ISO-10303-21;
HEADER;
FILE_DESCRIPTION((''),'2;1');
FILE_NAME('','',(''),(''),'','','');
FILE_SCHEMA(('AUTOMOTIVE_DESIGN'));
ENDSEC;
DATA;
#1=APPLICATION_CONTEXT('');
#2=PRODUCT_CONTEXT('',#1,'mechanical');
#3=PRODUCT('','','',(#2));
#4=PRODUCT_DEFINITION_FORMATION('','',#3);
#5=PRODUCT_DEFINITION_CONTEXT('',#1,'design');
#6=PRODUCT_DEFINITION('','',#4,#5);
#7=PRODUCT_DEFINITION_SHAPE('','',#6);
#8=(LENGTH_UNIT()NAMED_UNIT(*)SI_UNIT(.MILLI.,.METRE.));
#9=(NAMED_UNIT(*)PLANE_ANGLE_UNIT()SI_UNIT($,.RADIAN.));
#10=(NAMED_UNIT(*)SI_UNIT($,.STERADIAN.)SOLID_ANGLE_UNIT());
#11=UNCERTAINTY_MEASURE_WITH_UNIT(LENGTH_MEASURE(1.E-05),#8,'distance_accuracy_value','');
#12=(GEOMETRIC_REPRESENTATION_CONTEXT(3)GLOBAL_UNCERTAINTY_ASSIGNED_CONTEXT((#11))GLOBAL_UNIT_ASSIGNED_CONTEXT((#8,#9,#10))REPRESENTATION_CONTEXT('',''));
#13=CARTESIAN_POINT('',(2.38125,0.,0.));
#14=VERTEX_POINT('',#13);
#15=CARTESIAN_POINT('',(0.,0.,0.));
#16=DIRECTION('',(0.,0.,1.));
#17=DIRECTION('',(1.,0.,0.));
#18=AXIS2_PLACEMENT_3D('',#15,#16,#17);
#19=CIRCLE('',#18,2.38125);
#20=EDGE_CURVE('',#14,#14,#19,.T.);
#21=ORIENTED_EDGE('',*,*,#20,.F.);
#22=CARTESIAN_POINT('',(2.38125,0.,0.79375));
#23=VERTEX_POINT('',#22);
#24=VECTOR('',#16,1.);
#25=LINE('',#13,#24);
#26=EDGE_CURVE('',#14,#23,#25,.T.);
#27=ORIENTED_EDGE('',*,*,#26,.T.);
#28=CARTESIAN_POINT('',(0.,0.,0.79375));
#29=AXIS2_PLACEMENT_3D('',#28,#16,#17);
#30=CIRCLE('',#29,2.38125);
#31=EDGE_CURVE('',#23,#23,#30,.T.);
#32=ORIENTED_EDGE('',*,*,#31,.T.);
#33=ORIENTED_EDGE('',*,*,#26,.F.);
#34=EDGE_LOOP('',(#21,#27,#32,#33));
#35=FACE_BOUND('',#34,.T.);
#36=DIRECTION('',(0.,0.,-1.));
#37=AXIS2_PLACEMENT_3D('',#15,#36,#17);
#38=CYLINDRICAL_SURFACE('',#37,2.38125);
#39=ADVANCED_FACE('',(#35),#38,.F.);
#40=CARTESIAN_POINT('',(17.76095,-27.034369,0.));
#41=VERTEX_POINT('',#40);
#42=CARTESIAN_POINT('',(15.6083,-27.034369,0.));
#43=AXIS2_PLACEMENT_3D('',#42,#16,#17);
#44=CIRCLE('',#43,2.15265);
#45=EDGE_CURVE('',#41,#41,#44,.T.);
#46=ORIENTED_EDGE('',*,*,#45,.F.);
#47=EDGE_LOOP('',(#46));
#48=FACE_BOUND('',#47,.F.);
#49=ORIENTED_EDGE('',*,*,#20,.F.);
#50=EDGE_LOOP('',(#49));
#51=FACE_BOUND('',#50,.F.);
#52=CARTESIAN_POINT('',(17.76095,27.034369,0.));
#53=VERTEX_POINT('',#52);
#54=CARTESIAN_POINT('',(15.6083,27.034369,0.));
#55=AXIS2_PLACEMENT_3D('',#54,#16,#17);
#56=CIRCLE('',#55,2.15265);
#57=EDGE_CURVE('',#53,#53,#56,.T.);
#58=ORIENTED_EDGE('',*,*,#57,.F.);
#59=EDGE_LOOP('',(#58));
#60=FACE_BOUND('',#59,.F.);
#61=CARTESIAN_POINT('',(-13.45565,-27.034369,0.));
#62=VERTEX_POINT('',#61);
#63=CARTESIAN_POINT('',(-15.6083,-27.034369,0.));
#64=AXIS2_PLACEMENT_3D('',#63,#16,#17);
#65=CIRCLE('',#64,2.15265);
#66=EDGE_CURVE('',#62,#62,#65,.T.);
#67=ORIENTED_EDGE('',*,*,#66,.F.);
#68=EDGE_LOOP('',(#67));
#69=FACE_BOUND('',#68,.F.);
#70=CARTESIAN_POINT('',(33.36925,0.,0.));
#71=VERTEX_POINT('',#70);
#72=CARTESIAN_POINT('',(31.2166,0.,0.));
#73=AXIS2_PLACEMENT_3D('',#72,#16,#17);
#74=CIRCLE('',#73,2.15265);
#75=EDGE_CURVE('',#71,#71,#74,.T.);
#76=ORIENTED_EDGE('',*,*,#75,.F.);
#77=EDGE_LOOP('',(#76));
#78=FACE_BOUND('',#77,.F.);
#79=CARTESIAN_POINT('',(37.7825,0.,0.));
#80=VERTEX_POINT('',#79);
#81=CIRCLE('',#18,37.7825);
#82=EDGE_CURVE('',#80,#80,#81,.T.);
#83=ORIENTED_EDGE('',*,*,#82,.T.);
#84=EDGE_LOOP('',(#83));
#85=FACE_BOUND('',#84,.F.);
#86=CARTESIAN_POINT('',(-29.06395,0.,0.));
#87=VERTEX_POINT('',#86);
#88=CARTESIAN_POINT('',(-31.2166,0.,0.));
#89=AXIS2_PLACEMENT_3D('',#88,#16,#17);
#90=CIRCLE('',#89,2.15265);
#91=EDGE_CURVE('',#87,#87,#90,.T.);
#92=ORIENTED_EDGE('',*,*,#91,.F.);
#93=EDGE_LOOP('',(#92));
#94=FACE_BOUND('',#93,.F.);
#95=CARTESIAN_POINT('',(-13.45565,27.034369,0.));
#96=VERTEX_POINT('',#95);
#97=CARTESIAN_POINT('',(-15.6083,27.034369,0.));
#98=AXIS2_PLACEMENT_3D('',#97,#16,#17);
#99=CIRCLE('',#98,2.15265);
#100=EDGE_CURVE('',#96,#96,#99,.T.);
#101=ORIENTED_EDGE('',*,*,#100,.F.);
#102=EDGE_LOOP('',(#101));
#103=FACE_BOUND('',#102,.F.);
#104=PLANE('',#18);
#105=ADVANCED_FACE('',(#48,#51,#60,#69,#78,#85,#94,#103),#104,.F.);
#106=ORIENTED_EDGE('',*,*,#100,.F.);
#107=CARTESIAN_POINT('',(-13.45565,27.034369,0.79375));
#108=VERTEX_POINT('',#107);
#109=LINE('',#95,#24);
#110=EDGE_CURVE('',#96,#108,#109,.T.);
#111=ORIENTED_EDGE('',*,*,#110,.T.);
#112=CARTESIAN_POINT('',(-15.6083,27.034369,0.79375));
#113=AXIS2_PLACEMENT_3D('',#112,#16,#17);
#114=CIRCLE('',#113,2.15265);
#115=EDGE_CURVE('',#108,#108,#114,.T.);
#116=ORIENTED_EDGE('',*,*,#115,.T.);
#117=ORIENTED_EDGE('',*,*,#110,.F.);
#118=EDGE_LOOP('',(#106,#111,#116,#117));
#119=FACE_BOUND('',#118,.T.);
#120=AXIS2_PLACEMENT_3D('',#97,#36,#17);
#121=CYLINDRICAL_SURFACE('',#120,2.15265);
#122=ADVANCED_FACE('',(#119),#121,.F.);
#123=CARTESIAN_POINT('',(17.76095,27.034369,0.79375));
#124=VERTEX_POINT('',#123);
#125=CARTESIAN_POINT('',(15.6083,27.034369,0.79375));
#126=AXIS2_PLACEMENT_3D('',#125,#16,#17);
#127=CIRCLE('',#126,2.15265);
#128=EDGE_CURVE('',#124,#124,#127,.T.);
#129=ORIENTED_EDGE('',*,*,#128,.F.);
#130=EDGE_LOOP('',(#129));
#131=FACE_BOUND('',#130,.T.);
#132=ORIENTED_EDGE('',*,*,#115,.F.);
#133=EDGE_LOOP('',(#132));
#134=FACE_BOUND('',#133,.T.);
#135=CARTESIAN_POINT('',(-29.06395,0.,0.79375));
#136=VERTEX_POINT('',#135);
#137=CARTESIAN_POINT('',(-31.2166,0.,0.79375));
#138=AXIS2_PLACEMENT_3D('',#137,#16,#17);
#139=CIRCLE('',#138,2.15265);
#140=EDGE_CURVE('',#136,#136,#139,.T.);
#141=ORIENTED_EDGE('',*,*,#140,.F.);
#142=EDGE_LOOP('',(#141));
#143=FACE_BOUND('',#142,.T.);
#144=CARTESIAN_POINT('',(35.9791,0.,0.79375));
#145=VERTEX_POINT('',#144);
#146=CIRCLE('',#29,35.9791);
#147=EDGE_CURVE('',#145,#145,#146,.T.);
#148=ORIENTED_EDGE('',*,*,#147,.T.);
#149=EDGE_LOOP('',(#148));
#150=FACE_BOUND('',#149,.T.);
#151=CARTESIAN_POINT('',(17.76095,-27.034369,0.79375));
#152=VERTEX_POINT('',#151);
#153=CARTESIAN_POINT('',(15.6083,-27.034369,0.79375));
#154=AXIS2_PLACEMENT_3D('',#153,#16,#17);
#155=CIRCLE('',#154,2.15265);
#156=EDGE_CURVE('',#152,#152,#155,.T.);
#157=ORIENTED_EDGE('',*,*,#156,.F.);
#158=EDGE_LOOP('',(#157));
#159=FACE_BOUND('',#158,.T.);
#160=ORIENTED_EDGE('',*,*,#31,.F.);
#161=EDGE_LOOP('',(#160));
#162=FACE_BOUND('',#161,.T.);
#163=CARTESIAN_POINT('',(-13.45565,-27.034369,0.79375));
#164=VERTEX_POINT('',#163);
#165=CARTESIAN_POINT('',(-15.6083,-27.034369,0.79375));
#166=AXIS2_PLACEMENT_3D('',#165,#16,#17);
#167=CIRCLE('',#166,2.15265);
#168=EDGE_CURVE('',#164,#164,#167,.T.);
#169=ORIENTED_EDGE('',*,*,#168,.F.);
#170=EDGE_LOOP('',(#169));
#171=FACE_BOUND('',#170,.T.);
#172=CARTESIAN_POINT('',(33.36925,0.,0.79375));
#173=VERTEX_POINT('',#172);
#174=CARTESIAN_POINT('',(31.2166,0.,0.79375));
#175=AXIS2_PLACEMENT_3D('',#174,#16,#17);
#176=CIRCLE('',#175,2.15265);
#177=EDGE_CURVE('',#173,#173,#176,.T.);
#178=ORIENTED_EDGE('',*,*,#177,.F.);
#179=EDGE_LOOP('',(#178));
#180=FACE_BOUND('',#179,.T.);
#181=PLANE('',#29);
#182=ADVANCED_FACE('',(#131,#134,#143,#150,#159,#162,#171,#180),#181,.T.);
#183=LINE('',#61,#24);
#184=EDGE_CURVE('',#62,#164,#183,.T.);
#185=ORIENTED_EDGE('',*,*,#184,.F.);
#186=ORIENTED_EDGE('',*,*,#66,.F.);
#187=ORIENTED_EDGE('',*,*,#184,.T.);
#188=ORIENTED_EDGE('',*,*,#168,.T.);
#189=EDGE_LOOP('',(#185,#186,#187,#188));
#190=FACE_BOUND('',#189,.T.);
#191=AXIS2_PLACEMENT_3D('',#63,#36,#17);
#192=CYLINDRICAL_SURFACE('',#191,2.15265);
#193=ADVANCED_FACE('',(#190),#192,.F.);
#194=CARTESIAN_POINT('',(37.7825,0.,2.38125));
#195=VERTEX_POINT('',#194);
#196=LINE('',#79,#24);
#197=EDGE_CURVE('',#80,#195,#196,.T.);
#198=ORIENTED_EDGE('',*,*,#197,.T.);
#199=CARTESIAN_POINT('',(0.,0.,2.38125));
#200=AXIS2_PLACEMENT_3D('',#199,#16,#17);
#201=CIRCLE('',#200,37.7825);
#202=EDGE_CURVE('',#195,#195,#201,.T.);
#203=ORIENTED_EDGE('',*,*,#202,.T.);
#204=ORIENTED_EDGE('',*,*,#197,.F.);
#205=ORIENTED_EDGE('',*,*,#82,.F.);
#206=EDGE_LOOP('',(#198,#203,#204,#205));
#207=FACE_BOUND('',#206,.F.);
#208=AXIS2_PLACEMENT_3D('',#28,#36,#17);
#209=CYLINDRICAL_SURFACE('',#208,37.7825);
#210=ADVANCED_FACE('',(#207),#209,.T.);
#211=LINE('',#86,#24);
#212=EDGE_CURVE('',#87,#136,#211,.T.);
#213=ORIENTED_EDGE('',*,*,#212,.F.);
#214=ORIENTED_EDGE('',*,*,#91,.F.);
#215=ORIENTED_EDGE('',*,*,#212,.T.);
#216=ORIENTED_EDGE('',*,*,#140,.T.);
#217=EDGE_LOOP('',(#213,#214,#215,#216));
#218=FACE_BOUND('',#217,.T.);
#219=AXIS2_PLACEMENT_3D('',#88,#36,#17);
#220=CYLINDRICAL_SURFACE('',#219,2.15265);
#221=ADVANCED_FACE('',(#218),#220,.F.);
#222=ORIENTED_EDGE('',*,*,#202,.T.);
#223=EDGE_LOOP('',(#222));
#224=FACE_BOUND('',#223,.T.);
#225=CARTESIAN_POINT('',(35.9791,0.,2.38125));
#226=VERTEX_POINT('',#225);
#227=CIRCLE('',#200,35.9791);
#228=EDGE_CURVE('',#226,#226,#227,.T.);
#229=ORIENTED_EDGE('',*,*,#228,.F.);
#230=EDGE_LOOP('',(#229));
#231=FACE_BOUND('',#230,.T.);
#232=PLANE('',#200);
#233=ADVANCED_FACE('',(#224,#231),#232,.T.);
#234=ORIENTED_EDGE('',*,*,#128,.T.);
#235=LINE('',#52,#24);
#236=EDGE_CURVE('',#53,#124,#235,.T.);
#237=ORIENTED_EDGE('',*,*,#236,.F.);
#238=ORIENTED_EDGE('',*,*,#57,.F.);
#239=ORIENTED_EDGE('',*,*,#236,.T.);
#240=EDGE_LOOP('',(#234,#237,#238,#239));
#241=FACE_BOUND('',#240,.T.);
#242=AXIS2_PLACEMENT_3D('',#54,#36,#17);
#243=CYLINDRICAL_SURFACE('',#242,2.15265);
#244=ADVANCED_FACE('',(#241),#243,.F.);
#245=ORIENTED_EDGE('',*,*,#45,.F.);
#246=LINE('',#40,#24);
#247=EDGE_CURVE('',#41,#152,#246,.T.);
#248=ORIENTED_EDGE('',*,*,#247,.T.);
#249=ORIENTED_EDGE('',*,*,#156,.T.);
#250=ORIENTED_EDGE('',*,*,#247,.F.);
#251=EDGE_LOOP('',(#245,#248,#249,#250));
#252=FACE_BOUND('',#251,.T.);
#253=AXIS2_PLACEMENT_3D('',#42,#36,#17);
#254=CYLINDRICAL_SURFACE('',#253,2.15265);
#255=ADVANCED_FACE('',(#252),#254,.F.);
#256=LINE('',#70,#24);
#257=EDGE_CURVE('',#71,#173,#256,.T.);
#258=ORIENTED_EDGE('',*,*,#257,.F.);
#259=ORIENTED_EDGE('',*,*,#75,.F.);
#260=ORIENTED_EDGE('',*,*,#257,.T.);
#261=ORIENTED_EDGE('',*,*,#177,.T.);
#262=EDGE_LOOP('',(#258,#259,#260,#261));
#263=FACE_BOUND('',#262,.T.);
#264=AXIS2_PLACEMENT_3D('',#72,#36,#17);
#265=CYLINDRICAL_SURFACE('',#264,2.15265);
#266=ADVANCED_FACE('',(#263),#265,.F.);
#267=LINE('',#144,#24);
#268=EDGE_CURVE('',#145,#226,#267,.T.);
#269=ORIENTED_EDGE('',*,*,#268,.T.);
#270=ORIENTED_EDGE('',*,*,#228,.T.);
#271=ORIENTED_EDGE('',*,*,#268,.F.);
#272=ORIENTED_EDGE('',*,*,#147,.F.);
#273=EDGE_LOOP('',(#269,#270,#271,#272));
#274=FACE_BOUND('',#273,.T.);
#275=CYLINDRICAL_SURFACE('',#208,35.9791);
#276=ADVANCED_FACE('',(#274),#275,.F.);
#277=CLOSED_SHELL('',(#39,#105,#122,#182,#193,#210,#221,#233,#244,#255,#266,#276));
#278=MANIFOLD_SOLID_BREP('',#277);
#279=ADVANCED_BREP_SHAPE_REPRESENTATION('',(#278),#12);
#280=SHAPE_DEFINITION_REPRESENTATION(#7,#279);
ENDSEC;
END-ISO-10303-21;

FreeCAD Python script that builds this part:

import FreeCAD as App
import Part
import Sketcher
from FreeCAD import Vector
Q = App.Units.Quantity

doc = App.newDocument("Part")
body = doc.addObject("PartDesign::Body", "Body")

sketch1 = body.newObject("Sketcher::SketchObject", "Sketch")
sketch1.AttachmentSupport = (doc.getObject("XY_Plane"), [""])
sketch1.MapMode = "FlatFace"
sketch1.addGeometry([
    Part.Circle(Vector(0, 0, 0), Vector(0, 0, 1), 37.8),
    Part.Circle(Vector(-15.6, -27, 0), Vector(0, 0, 1), 2.2),
    Part.Circle(Vector(15.6, -27, 0), Vector(0, 0, 1), 2.2),
    Part.Circle(Vector(-31.2, 0, 0), Vector(0, 0, 1), 2.2),
    Part.Circle(Vector(0, 0, 0), Vector(0, 0, 1), 2.4),
    Part.Circle(Vector(-15.6, 27, 0), Vector(0, 0, 1), 2.2),
    Part.Circle(Vector(31.2, 0, 0), Vector(0, 0, 1), 2.2),
    Part.Circle(Vector(15.6, 27, 0), Vector(0, 0, 1), 2.2),
], False)
sketch1.addConstraint([
    Sketcher.Constraint("Coincident", 0, 3, -1, 1),
    Sketcher.Constraint("Coincident", 4, 3, -1, 1),
    Sketcher.Constraint("Equal", 1, 2),
    Sketcher.Constraint("Equal", 2, 3),
    Sketcher.Constraint("Equal", 3, 5),
    Sketcher.Constraint("Equal", 5, 6),
    Sketcher.Constraint("Equal", 6, 7),
    Sketcher.Constraint("Symmetric", 2, 3, 5, 3, -1, 1),
    Sketcher.Constraint("Symmetric", 3, 3, 6, 3, -1, 1),
    Sketcher.Constraint("Symmetric", 1, 3, 7, 3, -1, 1),
    Sketcher.Constraint("Symmetric", 1, 3, 2, 3, -2),
    Sketcher.Constraint("PointOnObject", 3, 3, -1),
    Sketcher.Constraint("Diameter", 0, Q("2.975 in")),
    Sketcher.Constraint("Diameter", 4, Q("0.1875 in")),
    Sketcher.Constraint("Diameter", 1, Q("0.1695 in")),
    Sketcher.Constraint("DistanceX", 3, 3, -1, 1, Q("1.229 in")),
    Sketcher.Constraint("DistanceX", 1, 3, 2, 3, Q("1.229 in")),
    Sketcher.Constraint("DistanceY", 1, 3, -1, 1, Q("27.034369 mm")),
])
pad1 = body.newObject("PartDesign::Pad", "Pad")
pad1.Profile = sketch1
pad1.Length = Q("0.03125 in")

sketch2 = body.newObject("Sketcher::SketchObject", "Sketch001")
sketch2.AttachmentSupport = (doc.getObject("XY_Plane"), [""])
sketch2.MapMode = "FlatFace"
sketch2.AttachmentOffset = App.Placement(Vector(0, 0, 0.03125 * 25.4), App.Rotation())
sketch2.addGeometry([
    Part.Circle(Vector(0, 0, 0), Vector(0, 0, 1), 38),
    Part.Circle(Vector(0, 0, 0), Vector(0, 0, 1), 36),
], False)
sketch2.addConstraint([
    Sketcher.Constraint("Coincident", 0, 3, -1, 1),
    Sketcher.Constraint("Coincident", 1, 3, -1, 1),
    Sketcher.Constraint("Diameter", 0, Q("2.975 in")),
    Sketcher.Constraint("Diameter", 1, Q("2.833 in")),
])
pad2 = body.newObject("PartDesign::Pad", "Pad001")
pad2.Profile = sketch2
pad2.Length = Q("0.0625 in")

doc.recompute()
